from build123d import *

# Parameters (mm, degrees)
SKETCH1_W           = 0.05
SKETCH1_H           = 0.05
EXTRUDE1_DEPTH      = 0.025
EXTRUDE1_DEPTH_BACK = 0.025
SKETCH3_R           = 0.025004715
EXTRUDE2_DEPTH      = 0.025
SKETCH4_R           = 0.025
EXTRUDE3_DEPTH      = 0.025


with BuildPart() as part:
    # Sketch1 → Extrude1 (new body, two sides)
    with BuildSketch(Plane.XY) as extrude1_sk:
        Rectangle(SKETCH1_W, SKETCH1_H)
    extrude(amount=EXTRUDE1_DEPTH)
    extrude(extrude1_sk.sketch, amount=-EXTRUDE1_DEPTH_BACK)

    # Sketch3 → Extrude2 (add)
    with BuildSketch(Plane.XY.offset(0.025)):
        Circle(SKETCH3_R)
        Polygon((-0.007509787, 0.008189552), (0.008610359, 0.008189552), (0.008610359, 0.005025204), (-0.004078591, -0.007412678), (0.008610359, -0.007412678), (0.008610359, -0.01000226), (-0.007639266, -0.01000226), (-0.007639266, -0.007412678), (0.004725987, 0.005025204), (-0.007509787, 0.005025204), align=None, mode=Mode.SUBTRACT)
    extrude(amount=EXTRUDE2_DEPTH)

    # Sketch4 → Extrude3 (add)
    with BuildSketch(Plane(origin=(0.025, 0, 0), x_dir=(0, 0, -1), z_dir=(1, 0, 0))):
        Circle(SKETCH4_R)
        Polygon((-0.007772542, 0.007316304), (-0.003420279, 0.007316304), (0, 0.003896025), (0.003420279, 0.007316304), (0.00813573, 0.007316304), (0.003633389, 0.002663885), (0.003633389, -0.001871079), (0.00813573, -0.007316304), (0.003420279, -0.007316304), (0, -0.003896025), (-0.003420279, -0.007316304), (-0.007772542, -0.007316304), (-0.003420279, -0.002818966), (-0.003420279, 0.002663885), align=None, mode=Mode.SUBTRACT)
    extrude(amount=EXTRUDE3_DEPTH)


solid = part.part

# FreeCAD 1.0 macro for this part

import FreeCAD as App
import Part
import Sketcher
from FreeCAD import Vector

doc = App.newDocument("Part")
params = doc.addObject("Spreadsheet::Sheet", "Params")
for row, (alias, value) in enumerate([
    ("sketch1_width", "0.05 mm"),
    ("pad1_length", "0.025 mm"),
    ("pad1_length2", "0.025 mm"),
    ("pad2_length", "0.025 mm"),
    ("sketch3_diameter", "0.05 mm"),
    ("pad3_length", "0.025 mm"),
], start=1):
    params.set(f"A{row}", alias)
    params.set(f"B{row}", "=" + value)
    params.setAlias(f"B{row}", alias)

body = doc.addObject("PartDesign::Body", "Body")

# Sketch on XY plane
sketch1 = body.newObject("Sketcher::SketchObject", "Sketch")
sketch1.AttachmentSupport = (doc.getObject("XY_Plane"), [""])
sketch1.MapMode = "FlatFace"
sketch1.addGeometry([
    Part.LineSegment(Vector(-0.025, 0.025, 0), Vector(-0.025, -0.025, 0)),
    Part.LineSegment(Vector(-0.025, -0.025, 0), Vector(0.025, -0.025, 0)),
    Part.LineSegment(Vector(0.025, -0.025, 0), Vector(0.025, 0.025, 0)),
    Part.LineSegment(Vector(0.025, 0.025, 0), Vector(-0.025, 0.025, 0)),
], False)
sketch1.addConstraint([
    Sketcher.Constraint("Coincident", 0, 2, 1, 1),
    Sketcher.Constraint("Coincident", 1, 2, 2, 1),
    Sketcher.Constraint("Coincident", 2, 2, 3, 1),
    Sketcher.Constraint("Coincident", 3, 2, 0, 1),
    Sketcher.Constraint("Vertical", 0),
    Sketcher.Constraint("Horizontal", 1),
    Sketcher.Constraint("Vertical", 2),
    Sketcher.Constraint("Horizontal", 3),
    Sketcher.Constraint("Symmetric", 0, 2, 2, 2, -1, 1),
    Sketcher.Constraint("Equal", 3, 0),
    Sketcher.Constraint("DistanceX", 1, 1, 1, 2, 0.05),
])
sketch1.setExpression("Constraints[10]", "Params.sketch1_width")
pad1 = body.newObject("PartDesign::Pad", "Pad")
pad1.Profile = sketch1
pad1.Type = "TwoLengths"
pad1.setExpression("Length", "Params.pad1_length")
pad1.setExpression("Length2", "Params.pad1_length2")

# Sketch on XY plane
sketch2 = body.newObject("Sketcher::SketchObject", "Sketch001")
sketch2.AttachmentSupport = (doc.getObject("XY_Plane"), [""])
sketch2.MapMode = "FlatFace"
sketch2.AttachmentOffset = App.Placement(Vector(0, 0, 0.025), App.Rotation())
sketch2.addGeometry([
    Part.Circle(Vector(0, 0, 0), Vector(0, 0, 1), 0.025005),  # 0
    Part.LineSegment(Vector(-0.00751, 0.005025, 0), Vector(-0.00751, 0.00819, 0)),  # 1
    Part.LineSegment(Vector(-0.00751, 0.00819, 0), Vector(0.00861, 0.00819, 0)),  # 2
    Part.LineSegment(Vector(0.00861, 0.00819, 0), Vector(0.00861, 0.005025, 0)),  # 3
    Part.LineSegment(Vector(0.00861, 0.005025, 0), Vector(-0.004079, -0.007413, 0)),  # 4
    Part.LineSegment(Vector(-0.004079, -0.007413, 0), Vector(0.00861, -0.007413, 0)),  # 5
    Part.LineSegment(Vector(0.00861, -0.007413, 0), Vector(0.00861, -0.010002, 0)),  # 6
    Part.LineSegment(Vector(0.00861, -0.010002, 0), Vector(-0.007639, -0.010002, 0)),  # 7
    Part.LineSegment(Vector(-0.007639, -0.010002, 0), Vector(-0.007639, -0.007413, 0)),  # 8
    Part.LineSegment(Vector(-0.007639, -0.007413, 0), Vector(0.004726, 0.005025, 0)),  # 9
    Part.LineSegment(Vector(0.004726, 0.005025, 0), Vector(-0.00751, 0.005025, 0)),  # 10
], False)
sketch2.addConstraint([
    Sketcher.Constraint("Coincident", 1, 2, 2, 1),
    Sketcher.Constraint("Coincident", 2, 2, 3, 1),
    Sketcher.Constraint("Coincident", 3, 2, 4, 1),
    Sketcher.Constraint("Coincident", 4, 2, 5, 1),
    Sketcher.Constraint("Coincident", 5, 2, 6, 1),
    Sketcher.Constraint("Coincident", 6, 2, 7, 1),
    Sketcher.Constraint("Coincident", 7, 2, 8, 1),
    Sketcher.Constraint("Coincident", 8, 2, 9, 1),
    Sketcher.Constraint("Coincident", 9, 2, 10, 1),
    Sketcher.Constraint("Coincident", 10, 2, 1, 1),
    Sketcher.Constraint("Vertical", 1),
    Sketcher.Constraint("Horizontal", 2),
    Sketcher.Constraint("Vertical", 3),
    Sketcher.Constraint("Horizontal", 5),
    Sketcher.Constraint("Vertical", 6),
    Sketcher.Constraint("Horizontal", 7),
    Sketcher.Constraint("Vertical", 8),
    Sketcher.Constraint("Horizontal", 10),
    Sketcher.Constraint("Coincident", 0, 3, -1, 1),
    Sketcher.Constraint("Horizontal", 5, 2, 8, 2),
    Sketcher.Constraint("Horizontal", 3, 2, 9, 2),
    Sketcher.Constraint("Vertical", 3, 2, 5, 2),
    Sketcher.Constraint("Diameter", 0, 0.050009),
    Sketcher.Constraint("DistanceX", 2, 1, 2, 2, 0.01612),
    Sketcher.Constraint("DistanceX", 5, 1, 5, 2, 0.012689),
    Sketcher.Constraint("DistanceX", 7, 2, 7, 1, 0.01625),
    Sketcher.Constraint("DistanceY", 6, 2, 6, 1, 0.00259),
    Sketcher.Constraint("Distance", 4, 0.017768),
    Sketcher.Constraint("Distance", 9, 0.017539),
    Sketcher.Constraint("DistanceY", 1, 1, 1, 2, 0.003164),
    Sketcher.Constraint("DistanceX", 1, 2, -1, 1, 0.00751),
    Sketcher.Constraint("DistanceY", -1, 1, 1, 2, 0.00819),
])
pad2 = body.newObject("PartDesign::Pad", "Pad001")
pad2.Profile = sketch2
pad2.setExpression("Length", "Params.pad2_length")

# Sketch on YZ plane
sketch3 = body.newObject("Sketcher::SketchObject", "Sketch002")
sketch3.AttachmentSupport = (doc.getObject("YZ_Plane"), [""])
sketch3.MapMode = "FlatFace"
sketch3.AttachmentOffset = App.Placement(Vector(0, 0, 0.025), App.Rotation())
sketch3.addGeometry([
    Part.Circle(Vector(0, 0, 0), Vector(0, 0, 1), 0.025),  # 0
    Part.LineSegment(Vector(0.002664, 0.00342, 0), Vector(0.007316, 0.007773, 0)),  # 1
    Part.LineSegment(Vector(0.007316, 0.007773, 0), Vector(0.007316, 0.00342, 0)),  # 2
    Part.LineSegment(Vector(0.007316, 0.00342, 0), Vector(0.003896, 0, 0)),  # 3
    Part.LineSegment(Vector(0.003896, 0, 0), Vector(0.007316, -0.00342, 0)),  # 4
    Part.LineSegment(Vector(0.007316, -0.00342, 0), Vector(0.007316, -0.008136, 0)),  # 5
    Part.LineSegment(Vector(0.007316, -0.008136, 0), Vector(0.002664, -0.003633, 0)),  # 6
    Part.LineSegment(Vector(0.002664, -0.003633, 0), Vector(-0.001871, -0.003633, 0)),  # 7
    Part.LineSegment(Vector(-0.001871, -0.003633, 0), Vector(-0.007316, -0.008136, 0)),  # 8
    Part.LineSegment(Vector(-0.007316, -0.008136, 0), Vector(-0.007316, -0.00342, 0)),  # 9
    Part.LineSegment(Vector(-0.007316, -0.00342, 0), Vector(-0.003896, 0, 0)),  # 10
    Part.LineSegment(Vector(-0.003896, 0, 0), Vector(-0.007316, 0.00342, 0)),  # 11
    Part.LineSegment(Vector(-0.007316, 0.00342, 0), Vector(-0.007316, 0.007773, 0)),  # 12
    Part.LineSegment(Vector(-0.007316, 0.007773, 0), Vector(-0.002819, 0.00342, 0)),  # 13
    Part.LineSegment(Vector(-0.002819, 0.00342, 0), Vector(0.002664, 0.00342, 0)),  # 14
], False)
sketch3.addConstraint([
    Sketcher.Constraint("Coincident", 1, 2, 2, 1),
    Sketcher.Constraint("Coincident", 2, 2, 3, 1),
    Sketcher.Constraint("Coincident", 3, 2, 4, 1),
    Sketcher.Constraint("Coincident", 4, 2, 5, 1),
    Sketcher.Constraint("Coincident", 5, 2, 6, 1),
    Sketcher.Constraint("Coincident", 6, 2, 7, 1),
    Sketcher.Constraint("Coincident", 7, 2, 8, 1),
    Sketcher.Constraint("Coincident", 8, 2, 9, 1),
    Sketcher.Constraint("Coincident", 9, 2, 10, 1),
    Sketcher.Constraint("Coincident", 10, 2, 11, 1),
    Sketcher.Constraint("Coincident", 11, 2, 12, 1),
    Sketcher.Constraint("Coincident", 12, 2, 13, 1),
    Sketcher.Constraint("Coincident", 13, 2, 14, 1),
    Sketcher.Constraint("Coincident", 14, 2, 1, 1),
    Sketcher.Constraint("Vertical", 2),
    Sketcher.Constraint("Vertical", 5),
    Sketcher.Constraint("Horizontal", 7),
    Sketcher.Constraint("Vertical", 9),
    Sketcher.Constraint("Vertical", 12),
    Sketcher.Constraint("Horizontal", 14),
    Sketcher.Constraint("Coincident", 0, 3, -1, 1),
    Sketcher.Constraint("Symmetric", 2, 2, 9, 2, -1, 1),
    Sketcher.Constraint("Symmetric", 3, 2, 10, 2, -1, 1),
    Sketcher.Constraint("Symmetric", 4, 2, 11, 2, -1, 1),
    Sketcher.Constraint("Symmetric", 5, 2, 8, 2, -2),
    Sketcher.Constraint("PointOnObject", 3, 2, -1),
    Sketcher.Constraint("Perpendicular", 3, 4),
    Sketcher.Constraint("Parallel", 6, 13),
    Sketcher.Constraint("Horizontal", 4, 2, 9, 2),
    Sketcher.Constraint("Horizontal", 1, 2, 12, 2),
    Sketcher.Constraint("Horizontal", 11, 2, 13, 2),
    Sketcher.Constraint("Vertical", 6, 2, 14, 2),
    Sketcher.Constraint("Diameter", 0, 0.05),
    Sketcher.Constraint("Distance", 1, 0.006371),
    Sketcher.Constraint("Distance", 13, 0.006258),
    Sketcher.Constraint("DistanceX", 7, 2, 7, 1, 0.004535),
    Sketcher.Constraint("DistanceX", 14, 1, 14, 2, 0.005483),
    Sketcher.Constraint("DistanceY", 2, 2, 2, 1, 0.004352),
    Sketcher.Constraint("DistanceY", 5, 2, 5, 1, 0.004715),
    Sketcher.Constraint("DistanceY", -1, 1, 2, 2, 0.00342),
])
sketch3.setExpression("Constraints[32]", "Params.sketch3_diameter")
pad3 = body.newObject("PartDesign::Pad", "Pad002")
pad3.Profile = sketch3
pad3.setExpression("Length", "Params.pad3_length")

doc.recompute()
